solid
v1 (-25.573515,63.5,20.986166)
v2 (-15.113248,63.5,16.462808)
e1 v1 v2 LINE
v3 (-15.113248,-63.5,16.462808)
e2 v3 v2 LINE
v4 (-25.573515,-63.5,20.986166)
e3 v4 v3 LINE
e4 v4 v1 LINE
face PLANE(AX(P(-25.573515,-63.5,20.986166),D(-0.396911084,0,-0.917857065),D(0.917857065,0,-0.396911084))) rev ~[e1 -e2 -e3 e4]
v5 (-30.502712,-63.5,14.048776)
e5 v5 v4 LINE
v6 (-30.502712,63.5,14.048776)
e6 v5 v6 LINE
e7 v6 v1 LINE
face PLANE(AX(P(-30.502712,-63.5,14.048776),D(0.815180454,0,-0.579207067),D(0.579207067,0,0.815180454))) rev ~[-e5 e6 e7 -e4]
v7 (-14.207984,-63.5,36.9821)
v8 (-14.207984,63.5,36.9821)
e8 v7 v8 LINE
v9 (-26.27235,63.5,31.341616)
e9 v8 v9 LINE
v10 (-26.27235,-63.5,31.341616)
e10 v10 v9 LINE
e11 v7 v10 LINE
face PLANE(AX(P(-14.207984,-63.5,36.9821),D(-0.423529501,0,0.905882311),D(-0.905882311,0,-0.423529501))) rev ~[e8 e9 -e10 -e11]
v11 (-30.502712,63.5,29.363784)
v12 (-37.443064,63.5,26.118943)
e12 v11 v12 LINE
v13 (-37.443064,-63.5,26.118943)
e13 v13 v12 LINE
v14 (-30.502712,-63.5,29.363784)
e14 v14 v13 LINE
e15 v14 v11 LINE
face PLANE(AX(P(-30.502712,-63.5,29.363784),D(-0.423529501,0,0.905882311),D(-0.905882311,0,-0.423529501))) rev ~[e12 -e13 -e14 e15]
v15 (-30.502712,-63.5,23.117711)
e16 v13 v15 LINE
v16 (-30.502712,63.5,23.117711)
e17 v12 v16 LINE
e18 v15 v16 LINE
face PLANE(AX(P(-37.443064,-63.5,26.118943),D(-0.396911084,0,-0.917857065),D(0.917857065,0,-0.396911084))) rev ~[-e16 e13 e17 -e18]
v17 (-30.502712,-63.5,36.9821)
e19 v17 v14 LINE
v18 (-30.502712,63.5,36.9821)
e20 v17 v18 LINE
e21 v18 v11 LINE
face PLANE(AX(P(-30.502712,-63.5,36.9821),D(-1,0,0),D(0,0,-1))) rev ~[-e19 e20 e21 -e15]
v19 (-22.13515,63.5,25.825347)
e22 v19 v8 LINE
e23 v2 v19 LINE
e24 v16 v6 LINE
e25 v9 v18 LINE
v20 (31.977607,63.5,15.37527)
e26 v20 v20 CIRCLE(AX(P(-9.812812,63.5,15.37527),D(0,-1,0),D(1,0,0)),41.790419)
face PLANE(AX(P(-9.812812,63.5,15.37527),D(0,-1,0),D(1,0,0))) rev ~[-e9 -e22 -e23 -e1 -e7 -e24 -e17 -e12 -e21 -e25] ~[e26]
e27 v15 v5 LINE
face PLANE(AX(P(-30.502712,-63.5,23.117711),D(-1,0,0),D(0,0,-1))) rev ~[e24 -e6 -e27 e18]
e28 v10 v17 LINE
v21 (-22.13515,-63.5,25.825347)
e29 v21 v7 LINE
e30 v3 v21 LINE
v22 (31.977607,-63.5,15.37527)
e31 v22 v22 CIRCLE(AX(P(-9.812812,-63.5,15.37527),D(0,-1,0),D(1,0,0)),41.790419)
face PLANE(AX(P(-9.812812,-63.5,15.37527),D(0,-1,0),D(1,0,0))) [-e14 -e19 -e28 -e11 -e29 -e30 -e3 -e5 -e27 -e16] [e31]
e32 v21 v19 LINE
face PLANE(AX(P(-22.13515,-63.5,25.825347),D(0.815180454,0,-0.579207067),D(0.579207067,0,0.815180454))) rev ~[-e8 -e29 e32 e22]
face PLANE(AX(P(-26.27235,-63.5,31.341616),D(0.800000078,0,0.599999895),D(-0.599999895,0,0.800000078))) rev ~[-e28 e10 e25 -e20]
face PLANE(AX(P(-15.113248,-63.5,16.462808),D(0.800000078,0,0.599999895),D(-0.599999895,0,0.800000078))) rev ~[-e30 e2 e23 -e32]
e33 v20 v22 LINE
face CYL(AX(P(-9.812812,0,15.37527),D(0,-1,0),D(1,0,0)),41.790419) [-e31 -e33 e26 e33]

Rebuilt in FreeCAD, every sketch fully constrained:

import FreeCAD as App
import Part
import Sketcher
from FreeCAD import Vector
Q = App.Units.Quantity

doc = App.newDocument("Part")
params = doc.addObject("Spreadsheet::Sheet", "Params")
for row, (alias, value) in enumerate([
    ("pad1_length", "5 in"),
], start=1):
    params.set(f"A{row}", alias)
    params.set(f"B{row}", "=" + value)
    params.setAlias(f"B{row}", alias)

body = doc.addObject("PartDesign::Body", "Body")

# Sketch on XZ plane
sketch1 = body.newObject("Sketcher::SketchObject", "Sketch")
sketch1.AttachmentSupport = (doc.getObject("XZ_Plane"), [""])
sketch1.MapMode = "FlatFace"
sketch1.addGeometry(Part.Circle(Vector(-10, 15, 0), Vector(0, 0, 1), 42), False)
sketch1.addConstraint([
    Sketcher.Constraint("Diameter", 0, 83.580839),
    Sketcher.Constraint("DistanceY", -1, 1, 0, 3, 15.37527),
    Sketcher.Constraint("DistanceX", 0, 3, -1, 1, 9.812812),
])
pad1 = body.newObject("PartDesign::Pad", "Pad")
pad1.Profile = sketch1
pad1.setExpression("Length", "Params.pad1_length")
pad1.Midplane = True

# Sketch on XZ plane
sketch2 = body.newObject("Sketcher::SketchObject", "Sketch001")
sketch2.AttachmentSupport = (doc.getObject("XZ_Plane"), [""])
sketch2.MapMode = "FlatFace"
sketch2.AttachmentOffset = App.Placement(Vector(0, 0, 2.5 * 25.4), App.Rotation())
sketch2.addGeometry([
    Part.LineSegment(Vector(-26, 21, 0), Vector(-15, 16, 0)),  # 0
    Part.LineSegment(Vector(-15, 16, 0), Vector(-22, 26, 0)),  # 1
    Part.LineSegment(Vector(-22, 26, 0), Vector(-14, 37, 0)),  # 2
    Part.LineSegment(Vector(-14, 37, 0), Vector(-26, 31, 0)),  # 3
    Part.LineSegment(Vector(-26, 31, 0), Vector(-31, 37, 0)),  # 4
    Part.LineSegment(Vector(-31, 37, 0), Vector(-31, 29, 0)),  # 5
    Part.LineSegment(Vector(-31, 29, 0), Vector(-37, 26, 0)),  # 6
    Part.LineSegment(Vector(-37, 26, 0), Vector(-31, 23, 0)),  # 7
    Part.LineSegment(Vector(-31, 23, 0), Vector(-31, 14, 0)),  # 8
    Part.LineSegment(Vector(-31, 14, 0), Vector(-26, 21, 0)),  # 9
], False)
sketch2.addConstraint([
    Sketcher.Constraint("Coincident", 0, 2, 1, 1),
    Sketcher.Constraint("Coincident", 1, 2, 2, 1),
    Sketcher.Constraint("Coincident", 2, 2, 3, 1),
    Sketcher.Constraint("Coincident", 3, 2, 4, 1),
    Sketcher.Constraint("Coincident", 4, 2, 5, 1),
    Sketcher.Constraint("Coincident", 5, 2, 6, 1),
    Sketcher.Constraint("Coincident", 6, 2, 7, 1),
    Sketcher.Constraint("Coincident", 7, 2, 8, 1),
    Sketcher.Constraint("Coincident", 8, 2, 9, 1),
    Sketcher.Constraint("Coincident", 9, 2, 0, 1),
    Sketcher.Constraint("Vertical", 5),
    Sketcher.Constraint("Vertical", 8),
    Sketcher.Constraint("Parallel", 1, 4),
    Sketcher.Constraint("Parallel", 3, 6),
    Sketcher.Constraint("Parallel", 0, 7),
    Sketcher.Constraint("Parallel", 2, 9),
    Sketcher.Constraint("Horizontal", 2, 2, 4, 2),
    Sketcher.Constraint("Vertical", 5, 2, 7, 2),
    Sketcher.Constraint("DistanceY", 7, 2, 1, 2, Q("0.1065999 in")),
    Sketcher.Constraint("Distance", 0, 11.396401),
    Sketcher.Constraint("DistanceY", -1, 1, 2, 2, 36.9821),
    Sketcher.Constraint("DistanceX", 3, 2, 1, 2, 4.137201),
    Sketcher.Constraint("Distance", 9, 8.510251),
    Sketcher.Constraint("DistanceY", 5, 2, 5, 1, 7.618316),
    Sketcher.Constraint("DistanceY", 8, 2, 8, 1, 9.068935),
    Sketcher.Constraint("DistanceY", -1, 1, 0, 2, 16.462808),
    Sketcher.Constraint("DistanceX", 1, 2, -1, 1, 22.13515),
    Sketcher.Constraint("DistanceY", -1, 1, 7, 2, 23.117711),
    Sketcher.Constraint("DistanceY", 1, 2, 3, 2, 5.516269),
    Sketcher.Constraint("DistanceX", 4, 2, 2, 2, 16.294728),
])
pocket1 = body.newObject("PartDesign::Pocket", "Pocket")
pocket1.Profile = sketch2
pocket1.Type = "ThroughAll"

doc.recompute()
